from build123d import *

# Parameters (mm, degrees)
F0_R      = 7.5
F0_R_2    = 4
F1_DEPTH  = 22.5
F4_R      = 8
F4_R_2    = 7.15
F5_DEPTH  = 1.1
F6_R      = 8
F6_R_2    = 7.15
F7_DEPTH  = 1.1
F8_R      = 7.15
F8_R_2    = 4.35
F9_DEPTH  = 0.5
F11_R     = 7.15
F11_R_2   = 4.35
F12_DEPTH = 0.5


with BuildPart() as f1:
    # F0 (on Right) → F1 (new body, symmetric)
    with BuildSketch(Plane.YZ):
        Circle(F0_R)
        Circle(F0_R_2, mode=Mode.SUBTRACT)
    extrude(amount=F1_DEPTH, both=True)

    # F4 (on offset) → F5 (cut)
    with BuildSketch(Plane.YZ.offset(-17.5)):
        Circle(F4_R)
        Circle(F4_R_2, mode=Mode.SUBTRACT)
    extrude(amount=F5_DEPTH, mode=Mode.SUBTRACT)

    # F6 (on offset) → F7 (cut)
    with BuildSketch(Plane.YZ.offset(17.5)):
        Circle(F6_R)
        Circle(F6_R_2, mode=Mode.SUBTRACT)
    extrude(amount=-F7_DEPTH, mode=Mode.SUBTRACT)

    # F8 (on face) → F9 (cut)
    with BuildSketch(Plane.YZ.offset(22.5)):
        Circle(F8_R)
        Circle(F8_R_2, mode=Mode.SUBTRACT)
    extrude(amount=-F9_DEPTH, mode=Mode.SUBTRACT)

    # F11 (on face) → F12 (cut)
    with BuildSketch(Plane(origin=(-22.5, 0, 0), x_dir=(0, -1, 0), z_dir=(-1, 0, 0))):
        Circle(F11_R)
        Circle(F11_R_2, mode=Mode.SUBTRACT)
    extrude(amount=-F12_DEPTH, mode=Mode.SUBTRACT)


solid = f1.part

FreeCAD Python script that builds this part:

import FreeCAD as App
import Part
import Sketcher

V = App.Vector

doc = App.newDocument("Part")
params = doc.addObject("Spreadsheet::Sheet", "Params")
for row, (alias, value) in enumerate([
    ("sketch1_diameter", "15 mm"),
    ("sketch1_diameter2", "8 mm"),
    ("pad1_length", "45 mm"),
    ("sketch2_diameter", "16 mm"),
    ("sketch2_diameter2", "14.3 mm"),
    ("pocket1_length", "1.1 mm"),
    ("sketch3_diameter", "16 mm"),
    ("sketch3_diameter2", "14.3 mm"),
    ("pocket2_length", "1.1 mm"),
    ("sketch4_diameter", "14.3 mm"),
    ("sketch4_diameter2", "8.7 mm"),
    ("pocket3_length", "0.5 mm"),
    ("sketch5_diameter", "14.3 mm"),
    ("sketch5_diameter2", "8.7 mm"),
    ("pocket4_length", "0.5 mm"),
], start=1):
    params.set(f"A{row}", alias)
    params.set(f"B{row}", "=" + value)
    params.setAlias(f"B{row}", alias)

body = doc.addObject("PartDesign::Body", "Body")

sketch1 = body.newObject("Sketcher::SketchObject", "Sketch")
sketch1.AttachmentSupport = (doc.getObject("YZ_Plane"), [""])
sketch1.MapMode = "FlatFace"
sketch1.addGeometry(Part.Circle(V(0, 0, 0), V(0, 0, 1), 7.5), False)
sketch1.addGeometry(Part.Circle(V(0, 0, 0), V(0, 0, 1), 4), False)
sketch1.addConstraint(Sketcher.Constraint("Coincident", 0, 3, -1, 1))
sketch1.addConstraint(Sketcher.Constraint("Coincident", 1, 3, -1, 1))
sketch1.addConstraint(Sketcher.Constraint("Diameter", 0, 15.0))
sketch1.addConstraint(Sketcher.Constraint("Diameter", 1, 8.0))
sketch1.setExpression("Constraints[2]", "Params.sketch1_diameter")
sketch1.setExpression("Constraints[3]", "Params.sketch1_diameter2")
pad1 = body.newObject("PartDesign::Pad", "Pad")
pad1.Profile = sketch1
pad1.setExpression("Length", "Params.pad1_length")
pad1.Midplane = True

sketch2 = body.newObject("Sketcher::SketchObject", "Sketch001")
sketch2.AttachmentSupport = (doc.getObject("YZ_Plane"), [""])
sketch2.MapMode = "FlatFace"
sketch2.AttachmentOffset = App.Placement(V(0, 0, -17.5), App.Rotation())
sketch2.addGeometry(Part.Circle(V(0, 0, 0), V(0, 0, 1), 8), False)
sketch2.addGeometry(Part.Circle(V(0, 0, 0), V(0, 0, 1), 7.15), False)
sketch2.addConstraint(Sketcher.Constraint("Coincident", 0, 3, -1, 1))
sketch2.addConstraint(Sketcher.Constraint("Coincident", 1, 3, -1, 1))
sketch2.addConstraint(Sketcher.Constraint("Diameter", 0, 16.0))
sketch2.addConstraint(Sketcher.Constraint("Diameter", 1, 14.3))
sketch2.setExpression("Constraints[2]", "Params.sketch2_diameter")
sketch2.setExpression("Constraints[3]", "Params.sketch2_diameter2")
pocket1 = body.newObject("PartDesign::Pocket", "Pocket")
pocket1.Profile = sketch2
pocket1.setExpression("Length", "Params.pocket1_length")
pocket1.Reversed = True

sketch3 = body.newObject("Sketcher::SketchObject", "Sketch002")
sketch3.AttachmentSupport = (doc.getObject("YZ_Plane"), [""])
sketch3.MapMode = "FlatFace"
sketch3.AttachmentOffset = App.Placement(V(0, 0, 17.5), App.Rotation())
sketch3.addGeometry(Part.Circle(V(0, 0, 0), V(0, 0, 1), 8), False)
sketch3.addGeometry(Part.Circle(V(0, 0, 0), V(0, 0, 1), 7.15), False)
sketch3.addConstraint(Sketcher.Constraint("Coincident", 0, 3, -1, 1))
sketch3.addConstraint(Sketcher.Constraint("Coincident", 1, 3, -1, 1))
sketch3.addConstraint(Sketcher.Constraint("Diameter", 0, 16.0))
sketch3.addConstraint(Sketcher.Constraint("Diameter", 1, 14.3))
sketch3.setExpression("Constraints[2]", "Params.sketch3_diameter")
sketch3.setExpression("Constraints[3]", "Params.sketch3_diameter2")
pocket2 = body.newObject("PartDesign::Pocket", "Pocket001")
pocket2.Profile = sketch3
pocket2.setExpression("Length", "Params.pocket2_length")

sketch4 = body.newObject("Sketcher::SketchObject", "Sketch003")
sketch4.AttachmentSupport = (doc.getObject("YZ_Plane"), [""])
sketch4.MapMode = "FlatFace"
sketch4.AttachmentOffset = App.Placement(V(0, 0, 22.5), App.Rotation())
sketch4.addGeometry(Part.Circle(V(0, 0, 0), V(0, 0, 1), 7.15), False)
sketch4.addGeometry(Part.Circle(V(0, 0, 0), V(0, 0, 1), 4.35), False)
sketch4.addConstraint(Sketcher.Constraint("Coincident", 0, 3, -1, 1))
sketch4.addConstraint(Sketcher.Constraint("Coincident", 1, 3, -1, 1))
sketch4.addConstraint(Sketcher.Constraint("Diameter", 0, 14.3))
sketch4.addConstraint(Sketcher.Constraint("Diameter", 1, 8.7))
sketch4.setExpression("Constraints[2]", "Params.sketch4_diameter")
sketch4.setExpression("Constraints[3]", "Params.sketch4_diameter2")
pocket3 = body.newObject("PartDesign::Pocket", "Pocket002")
pocket3.Profile = sketch4
pocket3.setExpression("Length", "Params.pocket3_length")

sketch5 = body.newObject("Sketcher::SketchObject", "Sketch004")
sketch5.AttachmentSupport = (doc.getObject("YZ_Plane"), [""])
sketch5.MapMode = "FlatFace"
sketch5.AttachmentOffset = App.Placement(V(0, 0, -22.5), App.Rotation())
sketch5.addGeometry(Part.Circle(V(0, 0, 0), V(0, 0, 1), 7.15), False)
sketch5.addGeometry(Part.Circle(V(0, 0, 0), V(0, 0, 1), 4.35), False)
sketch5.addConstraint(Sketcher.Constraint("Coincident", 0, 3, -1, 1))
sketch5.addConstraint(Sketcher.Constraint("Coincident", 1, 3, -1, 1))
sketch5.addConstraint(Sketcher.Constraint("Diameter", 0, 14.3))
sketch5.addConstraint(Sketcher.Constraint("Diameter", 1, 8.7))
sketch5.setExpression("Constraints[2]", "Params.sketch5_diameter")
sketch5.setExpression("Constraints[3]", "Params.sketch5_diameter2")
pocket4 = body.newObject("PartDesign::Pocket", "Pocket003")
pocket4.Profile = sketch5
pocket4.setExpression("Length", "Params.pocket4_length")
pocket4.Reversed = True

doc.recompute()
